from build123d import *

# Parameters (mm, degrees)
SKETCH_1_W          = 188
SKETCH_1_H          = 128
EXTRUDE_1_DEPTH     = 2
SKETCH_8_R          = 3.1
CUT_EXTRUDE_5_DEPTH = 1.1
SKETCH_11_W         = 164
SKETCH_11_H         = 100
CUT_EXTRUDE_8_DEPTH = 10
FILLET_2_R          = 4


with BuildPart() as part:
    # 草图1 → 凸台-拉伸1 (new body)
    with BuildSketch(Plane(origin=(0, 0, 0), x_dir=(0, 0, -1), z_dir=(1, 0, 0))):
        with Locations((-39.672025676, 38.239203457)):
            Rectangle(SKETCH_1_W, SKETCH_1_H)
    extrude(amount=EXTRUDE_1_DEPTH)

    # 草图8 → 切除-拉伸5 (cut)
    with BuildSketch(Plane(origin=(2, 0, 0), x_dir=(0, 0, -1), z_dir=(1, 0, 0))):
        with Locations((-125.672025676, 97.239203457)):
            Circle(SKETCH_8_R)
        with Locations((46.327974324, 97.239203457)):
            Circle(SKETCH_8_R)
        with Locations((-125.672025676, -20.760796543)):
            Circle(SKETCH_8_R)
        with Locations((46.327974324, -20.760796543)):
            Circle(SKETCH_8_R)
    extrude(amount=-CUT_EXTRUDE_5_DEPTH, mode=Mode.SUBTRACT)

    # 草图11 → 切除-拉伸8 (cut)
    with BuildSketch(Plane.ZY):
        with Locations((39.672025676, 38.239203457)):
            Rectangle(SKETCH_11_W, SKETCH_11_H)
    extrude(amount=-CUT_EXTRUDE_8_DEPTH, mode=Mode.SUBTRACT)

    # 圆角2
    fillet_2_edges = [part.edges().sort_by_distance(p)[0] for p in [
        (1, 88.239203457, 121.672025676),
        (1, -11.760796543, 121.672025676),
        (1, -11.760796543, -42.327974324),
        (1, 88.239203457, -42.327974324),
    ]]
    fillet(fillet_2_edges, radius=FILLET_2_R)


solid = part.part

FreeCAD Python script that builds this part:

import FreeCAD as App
import Part
import Sketcher
Q = App.Units.Quantity


def edges_at(feature, points):
    """Names of the edges that pass closest to the given points."""
    edges = feature.Shape.Edges
    near = lambda p: min(range(len(edges)), key=lambda i: edges[i].distToShape(Part.Vertex(*p))[0])
    return sorted({f"Edge{near(p) + 1}" for p in points})

doc = App.newDocument("Part")
body = doc.addObject("PartDesign::Body", "Body")

# Sketch on YZ plane
sketch1 = doc.addObject("Sketcher::SketchObject", "Sketch")
body.addObject(sketch1)
sketch1.AttachmentSupport = (doc.YZ_Plane, [""])
sketch1.MapMode = "FlatFace"
sketch1.addGeometry([
    Part.LineSegment(App.Vector(102, 134, 0), App.Vector(-26, 134, 0)),
    Part.LineSegment(App.Vector(-26, 134, 0), App.Vector(-26, -54, 0)),
    Part.LineSegment(App.Vector(-26, -54, 0), App.Vector(102, -54, 0)),
    Part.LineSegment(App.Vector(102, -54, 0), App.Vector(102, 134, 0)),
], False)
sketch1.addConstraint([
    Sketcher.Constraint("Coincident", 0, 2, 1, 1),
    Sketcher.Constraint("Coincident", 1, 2, 2, 1),
    Sketcher.Constraint("Coincident", 2, 2, 3, 1),
    Sketcher.Constraint("Coincident", 3, 2, 0, 1),
    Sketcher.Constraint("Horizontal", 0),
    Sketcher.Constraint("Vertical", 1),
    Sketcher.Constraint("Horizontal", 2),
    Sketcher.Constraint("Vertical", 3),
    Sketcher.Constraint("DistanceX", 0, 2, 0, 1, Q("128 mm")),
    Sketcher.Constraint("DistanceY", 1, 2, 1, 1, Q("188 mm")),
    Sketcher.Constraint("DistanceX", 0, 2, -1, 1, Q("25.760797 mm")),
    Sketcher.Constraint("DistanceY", -1, 1, 0, 2, Q("133.672026 mm")),
])
pad1 = doc.addObject("PartDesign::Pad", "Pad")
body.addObject(pad1)
pad1.Profile = sketch1
pad1.Length = 2

# Sketch on YZ plane
sketch2 = doc.addObject("Sketcher::SketchObject", "Sketch001")
body.addObject(sketch2)
sketch2.AttachmentSupport = (doc.YZ_Plane, [""])
sketch2.MapMode = "FlatFace"
sketch2.AttachmentOffset = App.Placement(App.Vector(0, 0, 2), App.Rotation())
sketch2.addGeometry([
    Part.Circle(App.Vector(97.2, 125.7, 0), App.Vector(0, 0, 1), 3.1),
    Part.Circle(App.Vector(97.2, -46.3, 0), App.Vector(0, 0, 1), 3.1),
    Part.Circle(App.Vector(-20.8, 125.7, 0), App.Vector(0, 0, 1), 3.1),
    Part.Circle(App.Vector(-20.8, -46.3, 0), App.Vector(0, 0, 1), 3.1),
], False)
sketch2.addConstraint([
    Sketcher.Constraint("Equal", 0, 1),
    Sketcher.Constraint("Equal", 1, 2),
    Sketcher.Constraint("Equal", 2, 3),
    Sketcher.Constraint("Horizontal", 0, 3, 2, 3),
    Sketcher.Constraint("Horizontal", 1, 3, 3, 3),
    Sketcher.Constraint("Vertical", 0, 3, 1, 3),
    Sketcher.Constraint("Vertical", 2, 3, 3, 3),
    Sketcher.Constraint("Diameter", 0, Q("6.2 mm")),
    Sketcher.Constraint("DistanceY", 1, 3, 0, 3, Q("172 mm")),
    Sketcher.Constraint("DistanceX", 2, 3, 0, 3, Q("118 mm")),
    Sketcher.Constraint("DistanceX", -1, 1, 0, 3, Q("97.239203 mm")),
    Sketcher.Constraint("DistanceY", -1, 1, 0, 3, Q("125.672026 mm")),
])
pocket1 = doc.addObject("PartDesign::Pocket", "Pocket")
body.addObject(pocket1)
pocket1.Profile = sketch2
pocket1.Length = 1.1

# Sketch on YZ plane
sketch3 = doc.addObject("Sketcher::SketchObject", "Sketch002")
body.addObject(sketch3)
sketch3.AttachmentSupport = (doc.YZ_Plane, [""])
sketch3.MapMode = "FlatFace"
sketch3.addGeometry([
    Part.LineSegment(App.Vector(88, -42, 0), App.Vector(-12, -42, 0)),
    Part.LineSegment(App.Vector(-12, -42, 0), App.Vector(-12, 122, 0)),
    Part.LineSegment(App.Vector(-12, 122, 0), App.Vector(88, 122, 0)),
    Part.LineSegment(App.Vector(88, 122, 0), App.Vector(88, -42, 0)),
], False)
sketch3.addConstraint([
    Sketcher.Constraint("Coincident", 0, 2, 1, 1),
    Sketcher.Constraint("Coincident", 1, 2, 2, 1),
    Sketcher.Constraint("Coincident", 2, 2, 3, 1),
    Sketcher.Constraint("Coincident", 3, 2, 0, 1),
    Sketcher.Constraint("Horizontal", 0),
    Sketcher.Constraint("Vertical", 1),
    Sketcher.Constraint("Horizontal", 2),
    Sketcher.Constraint("Vertical", 3),
    Sketcher.Constraint("DistanceX", 0, 2, 0, 1, Q("100 mm")),
    Sketcher.Constraint("DistanceY", 1, 1, 1, 2, Q("164 mm")),
    Sketcher.Constraint("DistanceX", 0, 2, -1, 1, Q("11.760797 mm")),
    Sketcher.Constraint("DistanceY", 0, 2, -1, 1, Q("42.327974 mm")),
])
pocket2 = doc.addObject("PartDesign::Pocket", "Pocket001")
body.addObject(pocket2)
pocket2.Profile = sketch3
pocket2.Length = 10
pocket2.Reversed = True
doc.recompute()

fillet = doc.addObject("PartDesign::Fillet", "Fillet")
body.addObject(fillet)
fillet.Base = (pocket2, edges_at(pocket2, [
    (1, 88.239, 121.672),
    (1, -11.761, 121.672),
    (1, -11.761, -42.328),
    (1, 88.239, -42.328),
]))
fillet.Radius = 4

doc.recompute()
